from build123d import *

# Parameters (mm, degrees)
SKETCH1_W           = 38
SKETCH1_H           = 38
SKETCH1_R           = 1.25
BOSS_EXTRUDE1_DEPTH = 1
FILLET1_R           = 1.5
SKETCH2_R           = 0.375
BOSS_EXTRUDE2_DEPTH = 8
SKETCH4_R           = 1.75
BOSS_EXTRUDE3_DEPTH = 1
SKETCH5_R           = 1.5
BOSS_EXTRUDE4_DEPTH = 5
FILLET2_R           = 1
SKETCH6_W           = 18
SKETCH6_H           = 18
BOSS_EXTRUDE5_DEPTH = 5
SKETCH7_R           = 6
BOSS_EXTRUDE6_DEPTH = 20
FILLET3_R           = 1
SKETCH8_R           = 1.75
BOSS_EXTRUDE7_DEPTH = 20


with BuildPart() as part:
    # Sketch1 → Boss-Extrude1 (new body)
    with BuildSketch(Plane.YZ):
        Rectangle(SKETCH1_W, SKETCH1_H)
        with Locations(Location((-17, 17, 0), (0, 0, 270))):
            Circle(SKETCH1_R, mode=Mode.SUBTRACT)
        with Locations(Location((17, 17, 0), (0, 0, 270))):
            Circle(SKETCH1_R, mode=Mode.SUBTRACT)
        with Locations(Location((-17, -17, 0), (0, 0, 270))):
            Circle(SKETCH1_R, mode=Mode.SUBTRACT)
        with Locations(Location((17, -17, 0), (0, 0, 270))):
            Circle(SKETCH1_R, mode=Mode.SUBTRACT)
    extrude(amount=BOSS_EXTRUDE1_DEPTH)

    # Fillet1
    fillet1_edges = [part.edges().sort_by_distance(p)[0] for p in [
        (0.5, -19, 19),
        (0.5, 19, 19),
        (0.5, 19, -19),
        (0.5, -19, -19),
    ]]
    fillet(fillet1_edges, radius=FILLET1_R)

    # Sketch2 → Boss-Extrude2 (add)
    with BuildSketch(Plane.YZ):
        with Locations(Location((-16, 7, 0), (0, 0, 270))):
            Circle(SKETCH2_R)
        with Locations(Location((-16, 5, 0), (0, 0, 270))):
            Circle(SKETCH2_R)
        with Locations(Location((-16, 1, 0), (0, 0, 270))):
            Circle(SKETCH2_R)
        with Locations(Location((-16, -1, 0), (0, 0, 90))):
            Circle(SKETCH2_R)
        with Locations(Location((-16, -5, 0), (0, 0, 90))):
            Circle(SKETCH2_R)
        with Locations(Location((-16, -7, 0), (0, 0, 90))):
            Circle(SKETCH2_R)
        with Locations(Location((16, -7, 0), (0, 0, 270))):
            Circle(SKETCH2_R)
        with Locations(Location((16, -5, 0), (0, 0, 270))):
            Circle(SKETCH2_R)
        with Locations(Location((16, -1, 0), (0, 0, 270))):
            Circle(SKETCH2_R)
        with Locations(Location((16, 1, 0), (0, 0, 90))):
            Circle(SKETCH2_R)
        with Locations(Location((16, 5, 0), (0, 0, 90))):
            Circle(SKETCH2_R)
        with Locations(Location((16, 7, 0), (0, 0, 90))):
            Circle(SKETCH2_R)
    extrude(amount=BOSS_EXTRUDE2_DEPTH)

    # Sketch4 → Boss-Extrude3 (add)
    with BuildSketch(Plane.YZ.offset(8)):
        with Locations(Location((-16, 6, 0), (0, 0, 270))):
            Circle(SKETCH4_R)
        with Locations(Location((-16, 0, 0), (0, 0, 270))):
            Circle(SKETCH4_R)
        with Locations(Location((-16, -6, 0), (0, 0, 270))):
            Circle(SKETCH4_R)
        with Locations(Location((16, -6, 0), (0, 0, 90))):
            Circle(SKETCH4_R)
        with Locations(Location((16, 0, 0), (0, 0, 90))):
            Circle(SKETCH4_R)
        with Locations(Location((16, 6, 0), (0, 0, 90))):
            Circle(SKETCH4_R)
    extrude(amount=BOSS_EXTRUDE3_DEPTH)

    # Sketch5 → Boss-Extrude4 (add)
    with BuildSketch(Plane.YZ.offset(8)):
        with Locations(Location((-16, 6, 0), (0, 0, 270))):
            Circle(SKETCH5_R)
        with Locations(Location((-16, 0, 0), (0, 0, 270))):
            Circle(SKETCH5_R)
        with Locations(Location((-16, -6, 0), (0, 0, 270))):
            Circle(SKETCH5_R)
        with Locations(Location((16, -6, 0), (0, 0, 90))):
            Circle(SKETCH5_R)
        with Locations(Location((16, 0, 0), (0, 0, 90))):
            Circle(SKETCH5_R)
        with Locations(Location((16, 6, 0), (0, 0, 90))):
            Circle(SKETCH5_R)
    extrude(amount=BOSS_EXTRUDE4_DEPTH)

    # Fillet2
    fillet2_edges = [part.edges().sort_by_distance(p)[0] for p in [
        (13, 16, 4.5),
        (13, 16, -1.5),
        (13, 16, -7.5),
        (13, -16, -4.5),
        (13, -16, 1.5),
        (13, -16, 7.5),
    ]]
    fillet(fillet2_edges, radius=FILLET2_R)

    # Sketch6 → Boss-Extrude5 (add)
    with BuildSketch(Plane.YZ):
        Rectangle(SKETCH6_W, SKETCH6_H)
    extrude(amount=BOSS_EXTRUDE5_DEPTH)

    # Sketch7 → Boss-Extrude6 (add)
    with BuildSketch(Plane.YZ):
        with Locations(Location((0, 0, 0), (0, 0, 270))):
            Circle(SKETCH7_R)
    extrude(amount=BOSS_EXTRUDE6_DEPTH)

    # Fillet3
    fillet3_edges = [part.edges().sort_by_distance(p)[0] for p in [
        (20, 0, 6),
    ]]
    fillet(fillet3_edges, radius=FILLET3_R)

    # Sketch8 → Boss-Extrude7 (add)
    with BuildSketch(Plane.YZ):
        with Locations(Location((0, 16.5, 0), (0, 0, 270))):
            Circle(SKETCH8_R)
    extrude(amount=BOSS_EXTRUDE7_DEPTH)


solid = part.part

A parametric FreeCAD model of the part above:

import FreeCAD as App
import Part
import Sketcher

V = App.Vector
Q = App.Units.Quantity


def edges_at(feature, points):
    """Names of the edges that pass closest to the given points."""
    edges = feature.Shape.Edges
    near = lambda p: min(range(len(edges)), key=lambda i: edges[i].distToShape(Part.Vertex(*p))[0])
    return sorted({f"Edge{near(p) + 1}" for p in points})


def add_polygon(sketch, points):
    """Adds a closed chain of lines whose ends are joined by coincident constraints."""
    first, n = sketch.GeometryCount, len(points)
    for a, b in zip(points, points[1:] + points[:1]):
        sketch.addGeometry(Part.LineSegment(App.Vector(*a, 0), App.Vector(*b, 0)), False)
    for i in range(n):
        sketch.addConstraint(Sketcher.Constraint("Coincident", first + i, 2, first + (i + 1) % n, 1))

doc = App.newDocument("Part")
body = doc.addObject("PartDesign::Body", "Body")

# Sketch on YZ plane
sketch1 = body.newObject("Sketcher::SketchObject", "Sketch")
sketch1.AttachmentSupport = (doc.getObject("YZ_Plane"), [""])
sketch1.MapMode = "FlatFace"
add_polygon(sketch1, [(-19, 19), (-19, -19), (19, -19), (19, 19)])  # lines 0-3
sketch1.addGeometry(Part.Circle(V(-17, -17, 0), V(0, 0, 1), 1.25), False)  # 4
sketch1.addGeometry(Part.Circle(V(17, -17, 0), V(0, 0, 1), 1.25), False)  # 5
sketch1.addGeometry(Part.Circle(V(-17, 17, 0), V(0, 0, 1), 1.25), False)  # 6
sketch1.addGeometry(Part.Circle(V(17, 17, 0), V(0, 0, 1), 1.25), False)  # 7
sketch1.addConstraint([
    Sketcher.Constraint("Vertical", 0),
    Sketcher.Constraint("Horizontal", 1),
    Sketcher.Constraint("Vertical", 2),
    Sketcher.Constraint("Horizontal", 3),
    Sketcher.Constraint("Equal", 4, 5),
    Sketcher.Constraint("Equal", 5, 6),
    Sketcher.Constraint("Equal", 6, 7),
    Sketcher.Constraint("Symmetric", 5, 3, 6, 3, -1, 1),
    Sketcher.Constraint("Symmetric", 4, 3, 7, 3, -1, 1),
    Sketcher.Constraint("Symmetric", 0, 2, 2, 2, -1, 1),
    Sketcher.Constraint("Symmetric", 4, 3, 5, 3, -2),
    Sketcher.Constraint("Equal", 3, 0),
    Sketcher.Constraint("Diameter", 4, Q("2.5 mm")),
    Sketcher.Constraint("DistanceX", 1, 1, 1, 2, Q("38 mm")),
    Sketcher.Constraint("DistanceX", 4, 3, -1, 1, Q("17 mm")),
    Sketcher.Constraint("DistanceY", 4, 3, -1, 1, Q("17 mm")),
])
pad1 = body.newObject("PartDesign::Pad", "Pad")
pad1.Profile = sketch1
pad1.Length = 1
doc.recompute()

fillet = body.newObject("PartDesign::Fillet", "Fillet")
fillet.Base = (pad1, edges_at(pad1, [
    (0.5, -19, 19),
    (0.5, 19, 19),
    (0.5, 19, -19),
    (0.5, -19, -19),
]))
fillet.Radius = 1.5

# Sketch on YZ plane
sketch2 = body.newObject("Sketcher::SketchObject", "Sketch001")
sketch2.AttachmentSupport = (doc.getObject("YZ_Plane"), [""])
sketch2.MapMode = "FlatFace"
sketch2.addGeometry([
    Part.Circle(V(-16, 7, 0), V(0, 0, 1), 0.375),  # 0
    Part.Circle(V(-16, 5, 0), V(0, 0, 1), 0.375),  # 1
    Part.Circle(V(-16, 1, 0), V(0, 0, 1), 0.375),  # 2
    Part.Circle(V(-16, -1, 0), V(0, 0, 1), 0.375),  # 3
    Part.Circle(V(-16, -5, 0), V(0, 0, 1), 0.375),  # 4
    Part.Circle(V(-16, -7, 0), V(0, 0, 1), 0.375),  # 5
    Part.Circle(V(16, -7, 0), V(0, 0, 1), 0.375),  # 6
    Part.Circle(V(16, -5, 0), V(0, 0, 1), 0.375),  # 7
    Part.Circle(V(16, -1, 0), V(0, 0, 1), 0.375),  # 8
    Part.Circle(V(16, 1, 0), V(0, 0, 1), 0.375),  # 9
    Part.Circle(V(16, 5, 0), V(0, 0, 1), 0.375),  # 10
    Part.Circle(V(16, 7, 0), V(0, 0, 1), 0.375),  # 11
], False)
sketch2.addConstraint([
    Sketcher.Constraint("Equal", 0, 1),
    Sketcher.Constraint("Equal", 1, 2),
    Sketcher.Constraint("Equal", 2, 3),
    Sketcher.Constraint("Equal", 3, 4),
    Sketcher.Constraint("Equal", 4, 5),
    Sketcher.Constraint("Equal", 5, 6),
    Sketcher.Constraint("Equal", 6, 7),
    Sketcher.Constraint("Equal", 7, 8),
    Sketcher.Constraint("Equal", 8, 9),
    Sketcher.Constraint("Equal", 9, 10),
    Sketcher.Constraint("Equal", 10, 11),
    Sketcher.Constraint("Symmetric", 0, 3, 6, 3, -1, 1),
    Sketcher.Constraint("Symmetric", 1, 3, 7, 3, -1, 1),
    Sketcher.Constraint("Symmetric", 2, 3, 8, 3, -1, 1),
    Sketcher.Constraint("Symmetric", 3, 3, 9, 3, -1, 1),
    Sketcher.Constraint("Symmetric", 4, 3, 10, 3, -1, 1),
    Sketcher.Constraint("Symmetric", 5, 3, 11, 3, -1, 1),
    Sketcher.Constraint("Symmetric", 5, 3, 6, 3, -2),
    Sketcher.Constraint("Symmetric", 4, 3, 7, 3, -2),
    Sketcher.Constraint("Symmetric", 3, 3, 8, 3, -2),
    Sketcher.Constraint("Vertical", 0, 3, 1, 3),
    Sketcher.Constraint("Vertical", 1, 3, 2, 3),
    Sketcher.Constraint("Diameter", 0, Q("0.75 mm")),
    Sketcher.Constraint("DistanceX", 0, 3, -1, 1, Q("16 mm")),
    Sketcher.Constraint("DistanceY", -1, 1, 0, 3, Q("7 mm")),
    Sketcher.Constraint("DistanceY", -1, 1, 1, 3, Q("5 mm")),
    Sketcher.Constraint("DistanceY", -1, 1, 2, 3, Q("1 mm")),
])
pad2 = body.newObject("PartDesign::Pad", "Pad001")
pad2.Profile = sketch2
pad2.Length = 8

# Sketch on YZ plane
sketch3 = body.newObject("Sketcher::SketchObject", "Sketch002")
sketch3.AttachmentSupport = (doc.getObject("YZ_Plane"), [""])
sketch3.MapMode = "FlatFace"
sketch3.AttachmentOffset = App.Placement(V(0, 0, 8), App.Rotation())
sketch3.addGeometry([
    Part.Circle(V(-16, 6, 0), V(0, 0, 1), 1.75),  # 0
    Part.Circle(V(-16, 0, 0), V(0, 0, 1), 1.75),  # 1
    Part.Circle(V(-16, -6, 0), V(0, 0, 1), 1.75),  # 2
    Part.Circle(V(16, -6, 0), V(0, 0, 1), 1.75),  # 3
    Part.Circle(V(16, 0, 0), V(0, 0, 1), 1.75),  # 4
    Part.Circle(V(16, 6, 0), V(0, 0, 1), 1.75),  # 5
], False)
sketch3.addConstraint([
    Sketcher.Constraint("Equal", 0, 1),
    Sketcher.Constraint("Equal", 1, 2),
    Sketcher.Constraint("Equal", 2, 3),
    Sketcher.Constraint("Equal", 3, 4),
    Sketcher.Constraint("Equal", 4, 5),
    Sketcher.Constraint("Symmetric", 0, 3, 3, 3, -1, 1),
    Sketcher.Constraint("Symmetric", 1, 3, 4, 3, -1, 1),
    Sketcher.Constraint("Symmetric", 2, 3, 5, 3, -1, 1),
    Sketcher.Constraint("Symmetric", 2, 3, 3, 3, -2),
    Sketcher.Constraint("PointOnObject", 1, 3, -1),
    Sketcher.Constraint("Vertical", 0, 3, 1, 3),
    Sketcher.Constraint("Diameter", 0, Q("3.5 mm")),
    Sketcher.Constraint("DistanceX", 0, 3, -1, 1, Q("16 mm")),
    Sketcher.Constraint("DistanceY", -1, 1, 0, 3, Q("6 mm")),
])
pad3 = body.newObject("PartDesign::Pad", "Pad002")
pad3.Profile = sketch3
pad3.Length = 1

# Sketch on YZ plane
sketch4 = body.newObject("Sketcher::SketchObject", "Sketch003")
sketch4.AttachmentSupport = (doc.getObject("YZ_Plane"), [""])
sketch4.MapMode = "FlatFace"
sketch4.AttachmentOffset = App.Placement(V(0, 0, 8), App.Rotation())
sketch4.addGeometry([
    Part.Circle(V(-16, 6, 0), V(0, 0, 1), 1.5),  # 0
    Part.Circle(V(-16, 0, 0), V(0, 0, 1), 1.5),  # 1
    Part.Circle(V(-16, -6, 0), V(0, 0, 1), 1.5),  # 2
    Part.Circle(V(16, -6, 0), V(0, 0, 1), 1.5),  # 3
    Part.Circle(V(16, 0, 0), V(0, 0, 1), 1.5),  # 4
    Part.Circle(V(16, 6, 0), V(0, 0, 1), 1.5),  # 5
], False)
sketch4.addConstraint([
    Sketcher.Constraint("Equal", 0, 1),
    Sketcher.Constraint("Equal", 1, 2),
    Sketcher.Constraint("Equal", 2, 3),
    Sketcher.Constraint("Equal", 3, 4),
    Sketcher.Constraint("Equal", 4, 5),
    Sketcher.Constraint("Symmetric", 0, 3, 3, 3, -1, 1),
    Sketcher.Constraint("Symmetric", 1, 3, 4, 3, -1, 1),
    Sketcher.Constraint("Symmetric", 2, 3, 5, 3, -1, 1),
    Sketcher.Constraint("Symmetric", 2, 3, 3, 3, -2),
    Sketcher.Constraint("PointOnObject", 1, 3, -1),
    Sketcher.Constraint("Vertical", 0, 3, 1, 3),
    Sketcher.Constraint("Diameter", 0, Q("3 mm")),
    Sketcher.Constraint("DistanceX", 0, 3, -1, 1, Q("16 mm")),
    Sketcher.Constraint("DistanceY", -1, 1, 0, 3, Q("6 mm")),
])
pad4 = body.newObject("PartDesign::Pad", "Pad003")
pad4.Profile = sketch4
pad4.Length = 5
doc.recompute()

fillet2 = body.newObject("PartDesign::Fillet", "Fillet001")
fillet2.Base = (pad4, edges_at(pad4, [
    (13, 16, 4.5),
    (13, 16, -1.5),
    (13, 16, -7.5),
    (13, -16, -4.5),
    (13, -16, 1.5),
    (13, -16, 7.5),
]))
fillet2.Radius = 1

# Sketch on YZ plane
sketch5 = body.newObject("Sketcher::SketchObject", "Sketch004")
sketch5.AttachmentSupport = (doc.getObject("YZ_Plane"), [""])
sketch5.MapMode = "FlatFace"
add_polygon(sketch5, [(-9, 9), (-9, -9), (9, -9), (9, 9)])  # lines 0-3
sketch5.addConstraint([
    Sketcher.Constraint("Vertical", 0),
    Sketcher.Constraint("Horizontal", 1),
    Sketcher.Constraint("Vertical", 2),
    Sketcher.Constraint("Horizontal", 3),
    Sketcher.Constraint("Symmetric", 0, 2, 2, 2, -1, 1),
    Sketcher.Constraint("Equal", 3, 0),
    Sketcher.Constraint("DistanceX", 1, 1, 1, 2, Q("18 mm")),
])
pad5 = body.newObject("PartDesign::Pad", "Pad004")
pad5.Profile = sketch5
pad5.Length = 5

# Sketch on YZ plane
sketch6 = body.newObject("Sketcher::SketchObject", "Sketch005")
sketch6.AttachmentSupport = (doc.getObject("YZ_Plane"), [""])
sketch6.MapMode = "FlatFace"
sketch6.addGeometry(Part.Circle(V(0, 0, 0), V(0, 0, 1), 6), False)
sketch6.addConstraint([
    Sketcher.Constraint("Coincident", 0, 3, -1, 1),
    Sketcher.Constraint("Diameter", 0, Q("12 mm")),
])
pad6 = body.newObject("PartDesign::Pad", "Pad005")
pad6.Profile = sketch6
pad6.Length = 20
doc.recompute()

fillet3 = body.newObject("PartDesign::Fillet", "Fillet002")
fillet3.Base = (pad6, edges_at(pad6, [(20, 0, 6)]))
fillet3.Radius = 1

# Sketch on YZ plane
sketch7 = body.newObject("Sketcher::SketchObject", "Sketch006")
sketch7.AttachmentSupport = (doc.getObject("YZ_Plane"), [""])
sketch7.MapMode = "FlatFace"
sketch7.addGeometry(Part.Circle(V(0, 16.5, 0), V(0, 0, 1), 1.75), False)
sketch7.addConstraint([
    Sketcher.Constraint("PointOnObject", 0, 3, -2),
    Sketcher.Constraint("Diameter", 0, Q("3.5 mm")),
    Sketcher.Constraint("DistanceY", -1, 1, 0, 3, Q("16.5 mm")),
])
pad7 = body.newObject("PartDesign::Pad", "Pad006")
pad7.Profile = sketch7
pad7.Length = 20

doc.recompute()
